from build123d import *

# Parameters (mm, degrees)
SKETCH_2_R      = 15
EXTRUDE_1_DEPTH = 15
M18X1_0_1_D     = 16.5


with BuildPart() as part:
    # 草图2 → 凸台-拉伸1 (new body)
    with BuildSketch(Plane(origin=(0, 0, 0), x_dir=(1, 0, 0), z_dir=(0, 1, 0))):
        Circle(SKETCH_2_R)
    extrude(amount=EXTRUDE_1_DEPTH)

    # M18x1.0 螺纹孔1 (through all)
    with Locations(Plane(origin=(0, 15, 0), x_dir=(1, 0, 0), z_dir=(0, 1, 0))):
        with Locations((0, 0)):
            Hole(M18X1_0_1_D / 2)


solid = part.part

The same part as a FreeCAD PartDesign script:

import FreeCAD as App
import Part
import Sketcher

V = App.Vector
Q = App.Units.Quantity

doc = App.newDocument("Part")
body = doc.addObject("PartDesign::Body", "Body")

sketch1 = body.newObject("Sketcher::SketchObject", "Sketch")
sketch1.AttachmentSupport = (doc.getObject("XZ_Plane"), [""])
sketch1.MapMode = "FlatFace"
sketch1.addGeometry(Part.Circle(V(0, 0, 0), V(0, 0, 1), 15), False)
sketch1.addConstraint(Sketcher.Constraint("Coincident", 0, 3, -1, 1))
sketch1.addConstraint(Sketcher.Constraint("Diameter", 0, Q("30 mm")))
pad1 = body.newObject("PartDesign::Pad", "Pad")
pad1.Profile = sketch1
pad1.Length = 15
pad1.Reversed = True

sketch2 = body.newObject("Sketcher::SketchObject", "Sketch001")
sketch2.AttachmentSupport = (doc.getObject("XZ_Plane"), [""])
sketch2.MapMode = "FlatFace"
sketch2.AttachmentOffset = App.Placement(V(0, 0, -15), App.Rotation())
sketch2.addGeometry(Part.Circle(V(0, 0, 0), V(0, 0, 1), 8.25), False)
sketch2.addConstraint(Sketcher.Constraint("Coincident", 0, 3, -1, 1))
sketch2.addConstraint(Sketcher.Constraint("Diameter", 0, Q("16.5 mm")))
doc.recompute()
hole = body.newObject("PartDesign::Hole", "Hole")
hole.Profile = sketch2
hole.ThreadType = "None"
hole.Diameter = 16.5
hole.DepthType = "ThroughAll"
hole.Reversed = True

doc.recompute()
